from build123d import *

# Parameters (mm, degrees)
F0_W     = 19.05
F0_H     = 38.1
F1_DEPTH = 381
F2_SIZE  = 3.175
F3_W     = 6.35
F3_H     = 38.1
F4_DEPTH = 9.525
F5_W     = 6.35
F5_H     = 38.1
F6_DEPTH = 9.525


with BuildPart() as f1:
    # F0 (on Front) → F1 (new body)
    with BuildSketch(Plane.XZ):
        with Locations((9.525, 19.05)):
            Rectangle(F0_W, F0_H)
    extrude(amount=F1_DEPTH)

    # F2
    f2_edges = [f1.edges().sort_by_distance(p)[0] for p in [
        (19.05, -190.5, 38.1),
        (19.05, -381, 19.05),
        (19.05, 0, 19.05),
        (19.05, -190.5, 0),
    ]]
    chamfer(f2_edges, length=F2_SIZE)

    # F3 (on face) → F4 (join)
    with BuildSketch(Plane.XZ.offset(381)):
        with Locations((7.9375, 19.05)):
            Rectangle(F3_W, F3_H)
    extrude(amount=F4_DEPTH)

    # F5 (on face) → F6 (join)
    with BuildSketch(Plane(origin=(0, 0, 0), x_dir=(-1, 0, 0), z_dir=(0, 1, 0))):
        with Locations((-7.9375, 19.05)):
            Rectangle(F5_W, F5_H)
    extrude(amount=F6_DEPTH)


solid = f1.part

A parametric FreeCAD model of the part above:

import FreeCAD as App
import Part
import Sketcher

V = App.Vector
Q = App.Units.Quantity


def edges_at(feature, points):
    """Names of the edges that pass closest to the given points."""
    edges = feature.Shape.Edges
    near = lambda p: min(range(len(edges)), key=lambda i: edges[i].distToShape(Part.Vertex(*p))[0])
    return sorted({f"Edge{near(p) + 1}" for p in points})


def add_polygon(sketch, points):
    """Adds a closed chain of lines whose ends are joined by coincident constraints."""
    first, n = sketch.GeometryCount, len(points)
    for a, b in zip(points, points[1:] + points[:1]):
        sketch.addGeometry(Part.LineSegment(App.Vector(*a, 0), App.Vector(*b, 0)), False)
    for i in range(n):
        sketch.addConstraint(Sketcher.Constraint("Coincident", first + i, 2, first + (i + 1) % n, 1))

doc = App.newDocument("Part")
body = doc.addObject("PartDesign::Body", "Body")

# Sketch on XZ plane
sketch1 = body.newObject("Sketcher::SketchObject", "Sketch")
sketch1.AttachmentSupport = (doc.getObject("XZ_Plane"), [""])
sketch1.MapMode = "FlatFace"
add_polygon(sketch1, [(0, 38), (0, 0), (19, 0), (19, 38)])  # lines 0-3
sketch1.addConstraint([
    Sketcher.Constraint("Vertical", 0),
    Sketcher.Constraint("Horizontal", 1),
    Sketcher.Constraint("Vertical", 2),
    Sketcher.Constraint("Horizontal", 3),
    Sketcher.Constraint("Coincident", 0, 2, -1, 1),
    Sketcher.Constraint("DistanceY", 0, 2, 0, 1, Q("1.5 in")),
    Sketcher.Constraint("DistanceX", 1, 1, 1, 2, Q("0.75 in")),
])
pad1 = body.newObject("PartDesign::Pad", "Pad")
pad1.Profile = sketch1
pad1.Length = Q("15 in")
doc.recompute()

chamfer = body.newObject("PartDesign::Chamfer", "Chamfer")
chamfer.Base = (pad1, edges_at(pad1, [
    (19.05, -190.5, 38.1),
    (19.05, -381, 19.05),
    (19.05, 0, 19.05),
    (19.05, -190.5, 0),
]))
chamfer.Size = Q("0.125 in")

# Sketch on XZ plane
sketch2 = body.newObject("Sketcher::SketchObject", "Sketch001")
sketch2.AttachmentSupport = (doc.getObject("XZ_Plane"), [""])
sketch2.MapMode = "FlatFace"
sketch2.AttachmentOffset = App.Placement(V(0, 0, 15 * 25.4), App.Rotation())
add_polygon(sketch2, [(5, 38), (5, 0), (11, 0), (11, 38)])  # lines 0-3
sketch2.addConstraint([
    Sketcher.Constraint("Vertical", 0),
    Sketcher.Constraint("Horizontal", 1),
    Sketcher.Constraint("Vertical", 2),
    Sketcher.Constraint("Horizontal", 3),
    Sketcher.Constraint("PointOnObject", 0, 2, -1),
    Sketcher.Constraint("DistanceY", 0, 2, 0, 1, Q("1.5 in")),
    Sketcher.Constraint("DistanceX", 1, 1, 1, 2, Q("0.25 in")),
    Sketcher.Constraint("DistanceX", -1, 1, 0, 2, Q("0.1875 in")),
])
pad2 = body.newObject("PartDesign::Pad", "Pad001")
pad2.Profile = sketch2
pad2.Length = Q("0.375 in")

# Sketch on XZ plane
sketch3 = body.newObject("Sketcher::SketchObject", "Sketch002")
sketch3.AttachmentSupport = (doc.getObject("XZ_Plane"), [""])
sketch3.MapMode = "FlatFace"
add_polygon(sketch3, [(11, 38), (11, 0), (5, 0), (5, 38)])  # lines 0-3
sketch3.addConstraint([
    Sketcher.Constraint("Vertical", 0),
    Sketcher.Constraint("Horizontal", 1),
    Sketcher.Constraint("Vertical", 2),
    Sketcher.Constraint("Horizontal", 3),
    Sketcher.Constraint("PointOnObject", 0, 2, -1),
    Sketcher.Constraint("DistanceY", 0, 2, 0, 1, Q("1.5 in")),
    Sketcher.Constraint("DistanceX", 1, 2, 1, 1, Q("0.25 in")),
    Sketcher.Constraint("DistanceX", -1, 1, 0, 2, Q("0.4375 in")),
])
pad3 = body.newObject("PartDesign::Pad", "Pad002")
pad3.Profile = sketch3
pad3.Length = Q("0.375 in")
pad3.Reversed = True

doc.recompute()
